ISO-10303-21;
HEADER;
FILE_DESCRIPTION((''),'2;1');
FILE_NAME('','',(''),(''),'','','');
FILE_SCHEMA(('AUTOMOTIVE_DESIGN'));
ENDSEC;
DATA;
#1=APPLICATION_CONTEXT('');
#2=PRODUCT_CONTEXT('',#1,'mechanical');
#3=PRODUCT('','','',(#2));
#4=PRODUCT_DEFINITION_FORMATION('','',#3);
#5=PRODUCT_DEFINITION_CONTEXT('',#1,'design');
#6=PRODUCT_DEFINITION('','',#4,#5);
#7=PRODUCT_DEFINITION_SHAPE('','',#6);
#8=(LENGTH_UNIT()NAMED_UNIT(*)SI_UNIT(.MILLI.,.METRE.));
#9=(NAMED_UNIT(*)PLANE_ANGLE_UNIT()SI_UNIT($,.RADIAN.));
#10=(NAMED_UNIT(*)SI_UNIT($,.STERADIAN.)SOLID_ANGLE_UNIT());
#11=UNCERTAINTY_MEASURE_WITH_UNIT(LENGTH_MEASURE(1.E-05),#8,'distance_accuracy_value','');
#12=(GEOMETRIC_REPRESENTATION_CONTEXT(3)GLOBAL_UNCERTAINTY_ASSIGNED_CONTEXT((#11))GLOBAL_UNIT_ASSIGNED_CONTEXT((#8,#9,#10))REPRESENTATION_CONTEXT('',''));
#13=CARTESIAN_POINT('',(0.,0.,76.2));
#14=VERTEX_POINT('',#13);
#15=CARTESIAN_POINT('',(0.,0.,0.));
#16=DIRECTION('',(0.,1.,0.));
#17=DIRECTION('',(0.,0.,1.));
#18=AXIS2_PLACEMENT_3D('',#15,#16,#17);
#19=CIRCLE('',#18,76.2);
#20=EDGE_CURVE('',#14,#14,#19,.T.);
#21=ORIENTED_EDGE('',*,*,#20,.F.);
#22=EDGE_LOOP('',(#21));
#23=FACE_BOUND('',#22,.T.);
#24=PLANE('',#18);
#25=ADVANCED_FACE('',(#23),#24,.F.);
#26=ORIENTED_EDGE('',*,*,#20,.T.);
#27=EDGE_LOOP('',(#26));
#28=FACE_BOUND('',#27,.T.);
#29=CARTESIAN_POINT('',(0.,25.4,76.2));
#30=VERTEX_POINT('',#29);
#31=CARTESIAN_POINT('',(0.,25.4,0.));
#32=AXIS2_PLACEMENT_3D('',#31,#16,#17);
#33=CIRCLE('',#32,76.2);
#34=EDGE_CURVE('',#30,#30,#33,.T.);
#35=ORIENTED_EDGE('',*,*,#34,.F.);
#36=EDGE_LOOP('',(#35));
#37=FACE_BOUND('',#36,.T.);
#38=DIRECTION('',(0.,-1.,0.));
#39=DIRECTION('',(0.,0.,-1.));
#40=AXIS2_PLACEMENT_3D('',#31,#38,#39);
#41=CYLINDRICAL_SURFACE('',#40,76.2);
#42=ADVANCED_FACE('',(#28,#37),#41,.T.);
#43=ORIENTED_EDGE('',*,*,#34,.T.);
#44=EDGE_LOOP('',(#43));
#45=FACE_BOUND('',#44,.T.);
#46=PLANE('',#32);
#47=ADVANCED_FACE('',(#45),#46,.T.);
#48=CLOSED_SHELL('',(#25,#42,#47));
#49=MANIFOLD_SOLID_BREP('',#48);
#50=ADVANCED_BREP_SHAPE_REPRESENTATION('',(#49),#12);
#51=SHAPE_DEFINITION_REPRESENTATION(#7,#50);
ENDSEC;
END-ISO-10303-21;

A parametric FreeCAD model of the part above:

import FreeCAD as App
import Part
import Sketcher

V = App.Vector
Q = App.Units.Quantity

doc = App.newDocument("Part")
body = doc.addObject("PartDesign::Body", "Body")

sketch1 = body.newObject("Sketcher::SketchObject", "Sketch")
sketch1.AttachmentSupport = (doc.getObject("XZ_Plane"), [""])
sketch1.MapMode = "FlatFace"
sketch1.addGeometry(Part.Circle(V(0, 0, 0), V(0, 0, 1), 76), False)
sketch1.addConstraint([
    Sketcher.Constraint("Coincident", 0, 3, -1, 1),
    Sketcher.Constraint("Diameter", 0, Q("6 in")),
])
pad1 = body.newObject("PartDesign::Pad", "Pad")
pad1.Profile = sketch1
pad1.Length = Q("1 in")
pad1.Reversed = True

doc.recompute()
